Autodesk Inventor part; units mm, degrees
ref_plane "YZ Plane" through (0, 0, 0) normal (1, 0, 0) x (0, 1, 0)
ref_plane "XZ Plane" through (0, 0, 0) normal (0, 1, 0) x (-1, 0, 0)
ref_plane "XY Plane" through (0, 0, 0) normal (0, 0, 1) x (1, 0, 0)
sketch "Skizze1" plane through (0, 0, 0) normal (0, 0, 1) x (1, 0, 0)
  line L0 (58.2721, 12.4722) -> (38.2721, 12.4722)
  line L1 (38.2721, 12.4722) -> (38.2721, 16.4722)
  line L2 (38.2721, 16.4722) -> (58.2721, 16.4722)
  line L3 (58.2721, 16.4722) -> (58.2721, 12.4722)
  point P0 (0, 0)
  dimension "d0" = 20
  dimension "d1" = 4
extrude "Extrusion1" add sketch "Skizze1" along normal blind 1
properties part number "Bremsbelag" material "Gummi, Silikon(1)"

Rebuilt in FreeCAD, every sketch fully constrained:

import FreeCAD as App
import Part
import Sketcher
from FreeCAD import Vector
Q = App.Units.Quantity

doc = App.newDocument("Part")
body = doc.addObject("PartDesign::Body", "Body")

# Sketch on XY plane
sketch1 = doc.addObject("Sketcher::SketchObject", "Sketch")
body.addObject(sketch1)
sketch1.AttachmentSupport = (doc.XY_Plane, [""])
sketch1.MapMode = "FlatFace"
sketch1.addGeometry(Part.LineSegment(Vector(38.3, 12.5, 0), Vector(58.3, 12.5, 0)), False)
sketch1.addGeometry(Part.LineSegment(Vector(58.3, 12.5, 0), Vector(58.3, 16.5, 0)), False)
sketch1.addGeometry(Part.LineSegment(Vector(58.3, 16.5, 0), Vector(38.3, 16.5, 0)), False)
sketch1.addGeometry(Part.LineSegment(Vector(38.3, 16.5, 0), Vector(38.3, 12.5, 0)), False)
sketch1.addConstraint(Sketcher.Constraint("Coincident", 0, 2, 1, 1))
sketch1.addConstraint(Sketcher.Constraint("Coincident", 1, 2, 2, 1))
sketch1.addConstraint(Sketcher.Constraint("Coincident", 2, 2, 3, 1))
sketch1.addConstraint(Sketcher.Constraint("Coincident", 3, 2, 0, 1))
sketch1.addConstraint(Sketcher.Constraint("Horizontal", 0))
sketch1.addConstraint(Sketcher.Constraint("Vertical", 1))
sketch1.addConstraint(Sketcher.Constraint("Horizontal", 2))
sketch1.addConstraint(Sketcher.Constraint("Vertical", 3))
sketch1.addConstraint(Sketcher.Constraint("DistanceX", 0, 1, 0, 2, Q("20 mm")))
sketch1.addConstraint(Sketcher.Constraint("DistanceY", 1, 1, 1, 2, Q("4 mm")))
sketch1.addConstraint(Sketcher.Constraint("DistanceX", -1, 1, 0, 2, Q("58.272 mm")))
sketch1.addConstraint(Sketcher.Constraint("DistanceY", -1, 1, 0, 2, Q("12.4722 mm")))
pad1 = doc.addObject("PartDesign::Pad", "Pad")
body.addObject(pad1)
pad1.Profile = sketch1
pad1.Length = 1

doc.recompute()
